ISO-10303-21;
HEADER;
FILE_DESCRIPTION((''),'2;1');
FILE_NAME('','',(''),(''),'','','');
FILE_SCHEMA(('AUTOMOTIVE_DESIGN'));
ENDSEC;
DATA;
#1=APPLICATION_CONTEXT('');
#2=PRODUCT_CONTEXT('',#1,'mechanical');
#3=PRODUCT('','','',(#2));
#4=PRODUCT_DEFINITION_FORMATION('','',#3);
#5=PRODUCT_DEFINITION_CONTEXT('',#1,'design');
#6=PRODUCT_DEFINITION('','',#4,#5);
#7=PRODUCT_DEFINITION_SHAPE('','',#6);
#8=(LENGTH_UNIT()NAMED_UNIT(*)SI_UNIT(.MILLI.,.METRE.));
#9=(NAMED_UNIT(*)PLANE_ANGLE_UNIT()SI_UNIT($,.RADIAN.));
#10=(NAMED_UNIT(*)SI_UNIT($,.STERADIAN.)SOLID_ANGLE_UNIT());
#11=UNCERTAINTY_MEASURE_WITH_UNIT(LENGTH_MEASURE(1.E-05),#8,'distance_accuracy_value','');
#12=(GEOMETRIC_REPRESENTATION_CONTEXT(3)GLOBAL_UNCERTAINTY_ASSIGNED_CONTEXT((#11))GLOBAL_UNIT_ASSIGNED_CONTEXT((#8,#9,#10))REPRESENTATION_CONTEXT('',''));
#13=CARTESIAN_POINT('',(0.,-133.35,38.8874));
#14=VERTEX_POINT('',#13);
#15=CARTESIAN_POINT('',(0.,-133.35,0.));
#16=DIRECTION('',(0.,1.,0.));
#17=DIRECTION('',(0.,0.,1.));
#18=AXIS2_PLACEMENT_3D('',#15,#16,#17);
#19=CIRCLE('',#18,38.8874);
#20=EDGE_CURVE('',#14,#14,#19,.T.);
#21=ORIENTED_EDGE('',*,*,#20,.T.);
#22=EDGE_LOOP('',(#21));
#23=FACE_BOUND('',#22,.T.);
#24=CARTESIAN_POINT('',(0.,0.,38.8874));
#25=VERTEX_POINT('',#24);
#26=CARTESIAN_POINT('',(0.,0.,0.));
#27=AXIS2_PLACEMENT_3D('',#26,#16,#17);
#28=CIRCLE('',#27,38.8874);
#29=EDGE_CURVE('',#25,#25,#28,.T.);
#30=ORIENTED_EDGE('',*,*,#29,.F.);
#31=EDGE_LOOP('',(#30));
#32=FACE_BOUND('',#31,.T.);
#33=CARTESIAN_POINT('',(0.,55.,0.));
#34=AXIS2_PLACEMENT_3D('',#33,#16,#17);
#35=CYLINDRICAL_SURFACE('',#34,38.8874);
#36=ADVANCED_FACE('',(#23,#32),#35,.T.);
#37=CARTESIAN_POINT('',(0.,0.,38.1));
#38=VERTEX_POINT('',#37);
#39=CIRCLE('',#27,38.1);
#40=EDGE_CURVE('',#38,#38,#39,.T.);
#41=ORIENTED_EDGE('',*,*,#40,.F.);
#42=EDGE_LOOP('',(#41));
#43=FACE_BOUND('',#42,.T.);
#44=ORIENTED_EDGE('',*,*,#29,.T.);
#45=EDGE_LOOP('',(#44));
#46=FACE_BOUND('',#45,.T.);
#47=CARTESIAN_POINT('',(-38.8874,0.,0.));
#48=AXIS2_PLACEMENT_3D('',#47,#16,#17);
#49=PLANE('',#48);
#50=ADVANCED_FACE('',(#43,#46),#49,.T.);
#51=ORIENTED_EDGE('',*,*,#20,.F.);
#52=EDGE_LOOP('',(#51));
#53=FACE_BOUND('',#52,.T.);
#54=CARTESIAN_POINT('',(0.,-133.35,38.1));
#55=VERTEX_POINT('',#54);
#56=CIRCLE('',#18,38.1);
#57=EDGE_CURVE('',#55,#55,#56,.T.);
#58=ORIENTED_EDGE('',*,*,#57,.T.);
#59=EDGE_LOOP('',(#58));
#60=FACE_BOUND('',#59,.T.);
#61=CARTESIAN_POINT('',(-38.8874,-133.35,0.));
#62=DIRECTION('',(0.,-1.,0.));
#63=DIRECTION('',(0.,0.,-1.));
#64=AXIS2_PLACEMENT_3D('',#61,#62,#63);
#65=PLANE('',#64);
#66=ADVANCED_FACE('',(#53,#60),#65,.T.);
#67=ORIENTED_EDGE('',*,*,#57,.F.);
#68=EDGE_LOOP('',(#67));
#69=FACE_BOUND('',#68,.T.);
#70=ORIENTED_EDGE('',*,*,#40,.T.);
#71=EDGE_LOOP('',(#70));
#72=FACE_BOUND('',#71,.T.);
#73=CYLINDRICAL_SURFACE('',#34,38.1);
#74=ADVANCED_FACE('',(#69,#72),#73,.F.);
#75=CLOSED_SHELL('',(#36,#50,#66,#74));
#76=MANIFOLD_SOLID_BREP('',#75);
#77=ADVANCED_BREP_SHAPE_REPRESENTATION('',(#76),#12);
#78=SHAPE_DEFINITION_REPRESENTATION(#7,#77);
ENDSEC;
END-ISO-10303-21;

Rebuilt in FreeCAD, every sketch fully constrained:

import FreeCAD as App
import Part
import Sketcher
Q = App.Units.Quantity


def add_polygon(sketch, points):
    """Adds a closed chain of lines whose ends are joined by coincident constraints."""
    first, n = sketch.GeometryCount, len(points)
    for a, b in zip(points, points[1:] + points[:1]):
        sketch.addGeometry(Part.LineSegment(App.Vector(*a, 0), App.Vector(*b, 0)), False)
    for i in range(n):
        sketch.addConstraint(Sketcher.Constraint("Coincident", first + i, 2, first + (i + 1) % n, 1))

doc = App.newDocument("Part")
body = doc.addObject("PartDesign::Body", "Body")

# Sketch on XY plane
sketch1 = body.newObject("Sketcher::SketchObject", "Sketch")
sketch1.AttachmentSupport = (doc.getObject("XY_Plane"), [""])
sketch1.MapMode = "FlatFace"
add_polygon(sketch1, [(-38.9, 0), (-38.9, -133.3), (-38.1, -133.3), (-38.1, 0)])  # lines 0-3
sketch1.addConstraint([
    Sketcher.Constraint("Vertical", 0),
    Sketcher.Constraint("Horizontal", 1),
    Sketcher.Constraint("Vertical", 2),
    Sketcher.Constraint("Horizontal", 3),
    Sketcher.Constraint("PointOnObject", 2, 2, -1),
    Sketcher.Constraint("DistanceY", 0, 2, 0, 1, Q("5.25 in")),
    Sketcher.Constraint("DistanceX", 1, 2, -1, 1, Q("1.5 in")),
    Sketcher.Constraint("DistanceX", 1, 1, 1, 2, Q("0.031 in")),
])
revolution = body.newObject("PartDesign::Revolution", "Revolution")
revolution.Profile = sketch1
revolution.ReferenceAxis = (sketch1, ["V_Axis"])
revolution.Angle = 360

doc.recompute()
